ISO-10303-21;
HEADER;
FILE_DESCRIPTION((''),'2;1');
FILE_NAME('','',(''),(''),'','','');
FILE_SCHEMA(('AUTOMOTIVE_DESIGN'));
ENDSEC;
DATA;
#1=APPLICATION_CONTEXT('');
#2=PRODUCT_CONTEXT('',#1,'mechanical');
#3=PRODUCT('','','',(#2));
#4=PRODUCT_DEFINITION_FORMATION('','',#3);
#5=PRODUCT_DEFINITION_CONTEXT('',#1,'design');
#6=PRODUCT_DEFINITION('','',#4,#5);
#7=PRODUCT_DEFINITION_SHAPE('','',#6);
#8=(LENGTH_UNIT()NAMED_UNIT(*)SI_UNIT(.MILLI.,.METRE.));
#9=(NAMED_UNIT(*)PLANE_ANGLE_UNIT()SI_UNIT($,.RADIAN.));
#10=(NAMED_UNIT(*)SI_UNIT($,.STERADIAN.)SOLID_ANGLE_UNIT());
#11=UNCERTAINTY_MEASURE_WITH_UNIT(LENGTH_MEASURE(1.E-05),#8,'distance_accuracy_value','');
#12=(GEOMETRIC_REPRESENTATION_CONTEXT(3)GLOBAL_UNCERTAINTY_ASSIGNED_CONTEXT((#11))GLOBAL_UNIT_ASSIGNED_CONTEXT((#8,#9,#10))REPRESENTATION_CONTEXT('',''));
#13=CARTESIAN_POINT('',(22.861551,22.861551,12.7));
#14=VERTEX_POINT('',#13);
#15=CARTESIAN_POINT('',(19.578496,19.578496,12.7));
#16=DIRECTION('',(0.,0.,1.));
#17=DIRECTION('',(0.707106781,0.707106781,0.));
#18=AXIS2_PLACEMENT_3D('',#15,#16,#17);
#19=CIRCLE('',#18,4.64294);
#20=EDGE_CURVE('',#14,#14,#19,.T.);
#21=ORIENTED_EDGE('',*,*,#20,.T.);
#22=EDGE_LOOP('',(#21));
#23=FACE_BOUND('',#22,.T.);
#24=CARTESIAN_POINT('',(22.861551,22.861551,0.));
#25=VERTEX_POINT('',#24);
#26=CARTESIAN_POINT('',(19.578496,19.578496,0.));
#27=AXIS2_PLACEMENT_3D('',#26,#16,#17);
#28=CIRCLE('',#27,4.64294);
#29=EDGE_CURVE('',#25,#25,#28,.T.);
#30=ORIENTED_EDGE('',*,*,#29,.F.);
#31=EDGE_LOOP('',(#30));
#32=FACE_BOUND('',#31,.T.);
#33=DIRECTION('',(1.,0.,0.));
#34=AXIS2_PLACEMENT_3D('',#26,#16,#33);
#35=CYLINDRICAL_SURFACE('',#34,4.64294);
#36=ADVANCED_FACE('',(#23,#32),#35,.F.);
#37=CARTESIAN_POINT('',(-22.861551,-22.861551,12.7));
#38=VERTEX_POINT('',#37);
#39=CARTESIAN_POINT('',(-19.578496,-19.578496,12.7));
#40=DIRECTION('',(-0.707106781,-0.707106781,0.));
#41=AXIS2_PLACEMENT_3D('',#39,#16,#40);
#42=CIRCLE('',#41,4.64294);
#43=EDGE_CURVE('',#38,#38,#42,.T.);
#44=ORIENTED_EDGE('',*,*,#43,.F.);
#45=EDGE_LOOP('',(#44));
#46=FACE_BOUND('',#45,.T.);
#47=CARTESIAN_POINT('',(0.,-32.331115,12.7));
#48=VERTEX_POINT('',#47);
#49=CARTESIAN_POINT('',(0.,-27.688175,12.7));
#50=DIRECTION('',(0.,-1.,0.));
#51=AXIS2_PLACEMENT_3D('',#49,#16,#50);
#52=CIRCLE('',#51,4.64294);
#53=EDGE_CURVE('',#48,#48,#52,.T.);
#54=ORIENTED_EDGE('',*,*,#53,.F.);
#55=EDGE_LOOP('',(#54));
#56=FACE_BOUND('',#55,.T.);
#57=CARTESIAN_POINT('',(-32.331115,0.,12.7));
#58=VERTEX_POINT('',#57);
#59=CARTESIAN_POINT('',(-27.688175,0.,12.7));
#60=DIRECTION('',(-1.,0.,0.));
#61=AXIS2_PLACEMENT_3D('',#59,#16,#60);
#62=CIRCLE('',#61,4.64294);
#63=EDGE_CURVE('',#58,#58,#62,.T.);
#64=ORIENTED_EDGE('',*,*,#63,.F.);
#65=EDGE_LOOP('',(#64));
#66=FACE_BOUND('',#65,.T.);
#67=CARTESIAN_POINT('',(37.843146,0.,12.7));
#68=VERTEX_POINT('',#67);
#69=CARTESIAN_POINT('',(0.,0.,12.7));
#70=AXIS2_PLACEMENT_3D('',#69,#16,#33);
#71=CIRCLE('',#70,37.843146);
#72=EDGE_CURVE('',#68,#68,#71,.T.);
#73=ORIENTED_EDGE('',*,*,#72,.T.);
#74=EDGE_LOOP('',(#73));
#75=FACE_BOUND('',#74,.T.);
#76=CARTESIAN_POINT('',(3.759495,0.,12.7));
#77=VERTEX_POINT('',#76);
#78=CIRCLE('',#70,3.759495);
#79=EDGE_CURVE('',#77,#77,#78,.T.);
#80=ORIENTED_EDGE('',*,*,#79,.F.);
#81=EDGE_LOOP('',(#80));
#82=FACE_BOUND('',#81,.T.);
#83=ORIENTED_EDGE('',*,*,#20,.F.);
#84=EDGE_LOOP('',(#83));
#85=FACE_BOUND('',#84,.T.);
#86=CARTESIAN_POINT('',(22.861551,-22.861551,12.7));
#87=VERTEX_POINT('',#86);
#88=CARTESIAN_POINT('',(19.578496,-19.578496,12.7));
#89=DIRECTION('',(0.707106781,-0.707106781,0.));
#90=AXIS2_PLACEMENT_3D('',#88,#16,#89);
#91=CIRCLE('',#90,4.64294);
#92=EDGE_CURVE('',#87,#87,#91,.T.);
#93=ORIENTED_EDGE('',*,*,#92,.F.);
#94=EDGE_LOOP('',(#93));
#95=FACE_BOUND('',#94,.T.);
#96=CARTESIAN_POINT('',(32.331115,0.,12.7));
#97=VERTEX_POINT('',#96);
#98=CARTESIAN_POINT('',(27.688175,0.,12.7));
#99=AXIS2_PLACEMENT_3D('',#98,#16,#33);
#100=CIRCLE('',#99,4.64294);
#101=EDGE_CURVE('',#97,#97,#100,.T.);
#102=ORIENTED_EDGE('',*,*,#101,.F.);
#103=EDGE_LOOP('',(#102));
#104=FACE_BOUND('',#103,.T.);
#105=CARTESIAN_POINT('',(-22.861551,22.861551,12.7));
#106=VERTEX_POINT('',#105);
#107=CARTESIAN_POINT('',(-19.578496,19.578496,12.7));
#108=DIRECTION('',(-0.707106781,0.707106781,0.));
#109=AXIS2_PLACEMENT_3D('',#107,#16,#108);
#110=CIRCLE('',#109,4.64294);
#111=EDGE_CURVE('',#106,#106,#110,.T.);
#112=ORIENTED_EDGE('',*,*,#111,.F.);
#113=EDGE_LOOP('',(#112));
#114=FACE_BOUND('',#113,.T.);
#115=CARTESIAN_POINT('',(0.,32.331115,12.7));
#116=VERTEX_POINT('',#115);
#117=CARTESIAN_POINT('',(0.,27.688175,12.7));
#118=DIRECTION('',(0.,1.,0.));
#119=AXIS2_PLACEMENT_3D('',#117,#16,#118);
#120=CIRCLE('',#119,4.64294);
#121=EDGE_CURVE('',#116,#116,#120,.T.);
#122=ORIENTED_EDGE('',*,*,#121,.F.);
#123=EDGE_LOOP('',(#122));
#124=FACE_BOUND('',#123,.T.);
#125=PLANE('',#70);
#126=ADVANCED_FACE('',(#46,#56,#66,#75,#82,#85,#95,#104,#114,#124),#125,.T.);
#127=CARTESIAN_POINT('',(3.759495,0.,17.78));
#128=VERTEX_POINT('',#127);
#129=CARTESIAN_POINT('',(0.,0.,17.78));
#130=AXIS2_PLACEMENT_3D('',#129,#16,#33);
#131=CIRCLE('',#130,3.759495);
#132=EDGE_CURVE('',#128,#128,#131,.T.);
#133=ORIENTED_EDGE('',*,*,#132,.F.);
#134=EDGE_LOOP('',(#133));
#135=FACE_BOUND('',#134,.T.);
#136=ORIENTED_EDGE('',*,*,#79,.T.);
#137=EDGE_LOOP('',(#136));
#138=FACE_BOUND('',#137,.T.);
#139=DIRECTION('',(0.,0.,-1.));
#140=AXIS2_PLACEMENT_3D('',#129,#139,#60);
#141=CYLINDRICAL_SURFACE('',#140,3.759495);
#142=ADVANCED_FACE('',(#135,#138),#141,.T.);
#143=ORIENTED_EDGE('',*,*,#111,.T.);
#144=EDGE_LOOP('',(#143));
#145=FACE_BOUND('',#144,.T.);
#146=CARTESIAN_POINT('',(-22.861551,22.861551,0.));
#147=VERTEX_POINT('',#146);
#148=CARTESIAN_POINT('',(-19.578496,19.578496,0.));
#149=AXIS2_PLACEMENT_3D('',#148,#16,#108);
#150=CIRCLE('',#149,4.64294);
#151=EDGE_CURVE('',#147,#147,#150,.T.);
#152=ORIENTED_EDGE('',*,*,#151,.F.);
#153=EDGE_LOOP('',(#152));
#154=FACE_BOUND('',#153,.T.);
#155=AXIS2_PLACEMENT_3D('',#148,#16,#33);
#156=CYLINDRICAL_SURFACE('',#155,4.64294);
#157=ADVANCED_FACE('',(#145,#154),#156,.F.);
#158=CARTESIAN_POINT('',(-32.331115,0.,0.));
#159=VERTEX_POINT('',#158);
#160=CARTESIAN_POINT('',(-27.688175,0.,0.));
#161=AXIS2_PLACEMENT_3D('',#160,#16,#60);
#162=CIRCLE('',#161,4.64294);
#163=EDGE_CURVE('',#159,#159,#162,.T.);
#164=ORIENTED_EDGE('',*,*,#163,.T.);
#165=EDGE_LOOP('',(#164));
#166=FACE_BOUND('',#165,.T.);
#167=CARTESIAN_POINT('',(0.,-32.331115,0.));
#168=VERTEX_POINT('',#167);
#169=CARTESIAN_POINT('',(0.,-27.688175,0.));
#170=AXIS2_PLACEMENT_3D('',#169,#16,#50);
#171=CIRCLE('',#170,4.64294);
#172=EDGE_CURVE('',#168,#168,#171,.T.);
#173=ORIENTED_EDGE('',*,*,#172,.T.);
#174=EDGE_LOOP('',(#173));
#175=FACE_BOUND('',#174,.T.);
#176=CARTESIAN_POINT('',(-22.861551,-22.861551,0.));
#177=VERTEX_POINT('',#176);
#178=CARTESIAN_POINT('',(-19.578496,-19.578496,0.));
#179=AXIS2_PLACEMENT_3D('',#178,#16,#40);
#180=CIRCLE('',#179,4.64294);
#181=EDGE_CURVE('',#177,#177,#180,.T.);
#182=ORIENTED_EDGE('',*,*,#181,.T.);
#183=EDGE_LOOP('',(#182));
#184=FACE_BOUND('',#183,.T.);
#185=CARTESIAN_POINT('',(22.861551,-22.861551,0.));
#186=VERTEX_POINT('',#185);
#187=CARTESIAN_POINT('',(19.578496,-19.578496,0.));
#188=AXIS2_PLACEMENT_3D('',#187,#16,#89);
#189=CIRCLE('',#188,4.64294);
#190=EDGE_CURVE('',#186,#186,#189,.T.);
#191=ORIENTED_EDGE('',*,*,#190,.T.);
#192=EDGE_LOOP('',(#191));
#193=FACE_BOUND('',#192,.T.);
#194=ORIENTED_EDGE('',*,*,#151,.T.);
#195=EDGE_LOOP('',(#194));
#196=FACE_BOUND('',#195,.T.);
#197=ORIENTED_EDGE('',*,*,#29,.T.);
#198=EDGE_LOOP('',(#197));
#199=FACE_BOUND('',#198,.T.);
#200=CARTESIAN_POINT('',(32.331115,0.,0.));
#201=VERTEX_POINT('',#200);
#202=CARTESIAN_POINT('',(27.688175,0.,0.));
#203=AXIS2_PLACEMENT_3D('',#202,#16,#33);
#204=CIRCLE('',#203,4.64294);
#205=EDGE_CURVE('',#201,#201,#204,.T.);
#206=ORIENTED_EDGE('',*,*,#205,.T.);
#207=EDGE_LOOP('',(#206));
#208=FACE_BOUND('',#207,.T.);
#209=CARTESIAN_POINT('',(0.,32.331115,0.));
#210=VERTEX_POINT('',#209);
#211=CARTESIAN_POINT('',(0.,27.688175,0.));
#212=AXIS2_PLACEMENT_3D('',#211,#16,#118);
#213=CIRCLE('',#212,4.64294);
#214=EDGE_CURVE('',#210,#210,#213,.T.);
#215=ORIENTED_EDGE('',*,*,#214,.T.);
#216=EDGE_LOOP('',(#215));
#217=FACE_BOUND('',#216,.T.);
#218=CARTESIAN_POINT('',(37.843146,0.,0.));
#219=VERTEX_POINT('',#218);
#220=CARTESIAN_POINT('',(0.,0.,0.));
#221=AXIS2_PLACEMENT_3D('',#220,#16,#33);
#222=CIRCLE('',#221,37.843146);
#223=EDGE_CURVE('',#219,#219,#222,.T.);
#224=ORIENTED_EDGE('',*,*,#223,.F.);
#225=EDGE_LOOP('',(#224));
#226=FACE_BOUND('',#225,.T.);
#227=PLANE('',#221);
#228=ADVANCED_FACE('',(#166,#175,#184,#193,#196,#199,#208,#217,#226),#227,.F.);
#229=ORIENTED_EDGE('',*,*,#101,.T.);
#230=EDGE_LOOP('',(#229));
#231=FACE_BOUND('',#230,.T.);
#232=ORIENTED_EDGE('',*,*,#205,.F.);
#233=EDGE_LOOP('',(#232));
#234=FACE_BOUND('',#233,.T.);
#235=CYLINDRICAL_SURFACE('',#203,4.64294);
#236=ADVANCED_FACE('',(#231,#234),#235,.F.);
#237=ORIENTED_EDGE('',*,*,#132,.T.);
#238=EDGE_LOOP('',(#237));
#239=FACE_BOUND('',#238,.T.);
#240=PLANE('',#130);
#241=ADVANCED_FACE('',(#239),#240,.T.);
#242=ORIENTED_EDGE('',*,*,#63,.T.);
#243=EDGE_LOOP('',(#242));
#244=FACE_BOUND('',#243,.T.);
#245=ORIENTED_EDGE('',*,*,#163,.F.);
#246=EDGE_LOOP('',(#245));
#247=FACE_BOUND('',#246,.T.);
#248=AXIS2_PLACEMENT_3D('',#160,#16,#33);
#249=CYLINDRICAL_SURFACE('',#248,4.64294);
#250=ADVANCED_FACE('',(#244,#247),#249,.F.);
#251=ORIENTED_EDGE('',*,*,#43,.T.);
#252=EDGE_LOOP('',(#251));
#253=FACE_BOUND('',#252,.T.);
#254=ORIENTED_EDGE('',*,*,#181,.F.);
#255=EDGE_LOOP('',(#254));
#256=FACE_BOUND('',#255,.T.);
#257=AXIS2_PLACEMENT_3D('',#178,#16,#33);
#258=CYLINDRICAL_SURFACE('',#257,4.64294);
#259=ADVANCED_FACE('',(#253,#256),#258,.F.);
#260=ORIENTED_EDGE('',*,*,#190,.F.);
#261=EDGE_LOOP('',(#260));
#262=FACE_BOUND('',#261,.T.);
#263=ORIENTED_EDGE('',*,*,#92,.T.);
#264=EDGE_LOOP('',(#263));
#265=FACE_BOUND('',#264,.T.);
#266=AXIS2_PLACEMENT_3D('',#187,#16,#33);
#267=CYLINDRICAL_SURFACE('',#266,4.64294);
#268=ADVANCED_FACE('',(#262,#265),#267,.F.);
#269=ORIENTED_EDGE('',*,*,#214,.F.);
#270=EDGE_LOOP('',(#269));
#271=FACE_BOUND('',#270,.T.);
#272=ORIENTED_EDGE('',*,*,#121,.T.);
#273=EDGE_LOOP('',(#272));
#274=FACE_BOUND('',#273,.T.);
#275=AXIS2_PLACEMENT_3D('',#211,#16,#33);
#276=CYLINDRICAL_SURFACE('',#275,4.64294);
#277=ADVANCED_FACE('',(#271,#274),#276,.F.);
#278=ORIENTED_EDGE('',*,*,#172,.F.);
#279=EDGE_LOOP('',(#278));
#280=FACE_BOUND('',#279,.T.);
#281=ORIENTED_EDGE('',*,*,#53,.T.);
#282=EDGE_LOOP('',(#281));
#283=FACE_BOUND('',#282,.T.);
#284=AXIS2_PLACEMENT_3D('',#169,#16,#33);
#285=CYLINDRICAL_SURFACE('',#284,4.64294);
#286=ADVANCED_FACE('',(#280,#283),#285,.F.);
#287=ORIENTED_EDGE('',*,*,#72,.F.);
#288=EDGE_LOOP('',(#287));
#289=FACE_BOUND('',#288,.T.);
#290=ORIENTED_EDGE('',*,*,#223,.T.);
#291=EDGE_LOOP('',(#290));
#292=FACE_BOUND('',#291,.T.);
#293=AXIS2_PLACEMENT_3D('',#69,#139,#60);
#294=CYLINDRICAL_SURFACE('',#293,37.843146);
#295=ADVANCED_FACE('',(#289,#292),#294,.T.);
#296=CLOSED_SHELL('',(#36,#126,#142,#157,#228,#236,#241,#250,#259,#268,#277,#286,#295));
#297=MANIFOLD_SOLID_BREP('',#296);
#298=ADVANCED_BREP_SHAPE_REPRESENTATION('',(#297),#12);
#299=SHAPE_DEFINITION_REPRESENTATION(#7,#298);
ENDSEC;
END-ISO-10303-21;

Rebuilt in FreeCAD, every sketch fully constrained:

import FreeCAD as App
import Part
import Sketcher
from FreeCAD import Vector
Q = App.Units.Quantity

doc = App.newDocument("Part")
body = doc.addObject("PartDesign::Body", "Body")

sketch1 = doc.addObject("Sketcher::SketchObject", "Sketch")
body.addObject(sketch1)
sketch1.AttachmentSupport = (doc.XY_Plane, [""])
sketch1.MapMode = "FlatFace"
sketch1.addGeometry(Part.Circle(Vector(0, 0, 0), Vector(0, 0, 1), 38), False)
sketch1.addConstraint([
    Sketcher.Constraint("Coincident", 0, 3, -1, 1),
    Sketcher.Constraint("Diameter", 0, Q("75.686292 mm")),
])
pad1 = doc.addObject("PartDesign::Pad", "Pad")
body.addObject(pad1)
pad1.Profile = sketch1
pad1.Length = Q("0.5 in")

sketch2 = doc.addObject("Sketcher::SketchObject", "Sketch001")
body.addObject(sketch2)
sketch2.AttachmentSupport = (doc.XY_Plane, [""])
sketch2.MapMode = "FlatFace"
sketch2.AttachmentOffset = App.Placement(Vector(0, 0, 0.5 * 25.4), App.Rotation())
sketch2.addGeometry(Part.Circle(Vector(0, 0, 0), Vector(0, 0, 1), 3.8), False)
sketch2.addConstraint([
    Sketcher.Constraint("Coincident", 0, 3, -1, 1),
    Sketcher.Constraint("Diameter", 0, Q("7.518991 mm")),
])
pad2 = doc.addObject("PartDesign::Pad", "Pad001")
body.addObject(pad2)
pad2.Profile = sketch2
pad2.Length = Q("0.2 in")

sketch3 = doc.addObject("Sketcher::SketchObject", "Sketch002")
body.addObject(sketch3)
sketch3.AttachmentSupport = (doc.XY_Plane, [""])
sketch3.MapMode = "FlatFace"
sketch3.AttachmentOffset = App.Placement(Vector(0, 0, 0.5 * 25.4), App.Rotation())
sketch3.addGeometry(Part.Circle(Vector(27.7, 0, 0), Vector(0, 0, 1), 4.6), False)
sketch3.addConstraint([
    Sketcher.Constraint("PointOnObject", 0, 3, -1),
    Sketcher.Constraint("Diameter", 0, Q("9.28588 mm")),
    Sketcher.Constraint("DistanceX", -1, 1, 0, 3, Q("27.688175 mm")),
])
pocket1 = doc.addObject("PartDesign::Pocket", "Pocket")
body.addObject(pocket1)
pocket1.Profile = sketch3
pocket1.Type = "ThroughAll"
doc.recompute()

polarpattern = doc.addObject("PartDesign::PolarPattern", "PolarPattern")
body.addObject(polarpattern)
polarpattern.Originals = [pocket1]
polarpattern.Axis = (doc.Z_Axis, [""])
polarpattern.Angle = 360
polarpattern.Occurrences = 8
body.Tip = polarpattern

doc.recompute()
